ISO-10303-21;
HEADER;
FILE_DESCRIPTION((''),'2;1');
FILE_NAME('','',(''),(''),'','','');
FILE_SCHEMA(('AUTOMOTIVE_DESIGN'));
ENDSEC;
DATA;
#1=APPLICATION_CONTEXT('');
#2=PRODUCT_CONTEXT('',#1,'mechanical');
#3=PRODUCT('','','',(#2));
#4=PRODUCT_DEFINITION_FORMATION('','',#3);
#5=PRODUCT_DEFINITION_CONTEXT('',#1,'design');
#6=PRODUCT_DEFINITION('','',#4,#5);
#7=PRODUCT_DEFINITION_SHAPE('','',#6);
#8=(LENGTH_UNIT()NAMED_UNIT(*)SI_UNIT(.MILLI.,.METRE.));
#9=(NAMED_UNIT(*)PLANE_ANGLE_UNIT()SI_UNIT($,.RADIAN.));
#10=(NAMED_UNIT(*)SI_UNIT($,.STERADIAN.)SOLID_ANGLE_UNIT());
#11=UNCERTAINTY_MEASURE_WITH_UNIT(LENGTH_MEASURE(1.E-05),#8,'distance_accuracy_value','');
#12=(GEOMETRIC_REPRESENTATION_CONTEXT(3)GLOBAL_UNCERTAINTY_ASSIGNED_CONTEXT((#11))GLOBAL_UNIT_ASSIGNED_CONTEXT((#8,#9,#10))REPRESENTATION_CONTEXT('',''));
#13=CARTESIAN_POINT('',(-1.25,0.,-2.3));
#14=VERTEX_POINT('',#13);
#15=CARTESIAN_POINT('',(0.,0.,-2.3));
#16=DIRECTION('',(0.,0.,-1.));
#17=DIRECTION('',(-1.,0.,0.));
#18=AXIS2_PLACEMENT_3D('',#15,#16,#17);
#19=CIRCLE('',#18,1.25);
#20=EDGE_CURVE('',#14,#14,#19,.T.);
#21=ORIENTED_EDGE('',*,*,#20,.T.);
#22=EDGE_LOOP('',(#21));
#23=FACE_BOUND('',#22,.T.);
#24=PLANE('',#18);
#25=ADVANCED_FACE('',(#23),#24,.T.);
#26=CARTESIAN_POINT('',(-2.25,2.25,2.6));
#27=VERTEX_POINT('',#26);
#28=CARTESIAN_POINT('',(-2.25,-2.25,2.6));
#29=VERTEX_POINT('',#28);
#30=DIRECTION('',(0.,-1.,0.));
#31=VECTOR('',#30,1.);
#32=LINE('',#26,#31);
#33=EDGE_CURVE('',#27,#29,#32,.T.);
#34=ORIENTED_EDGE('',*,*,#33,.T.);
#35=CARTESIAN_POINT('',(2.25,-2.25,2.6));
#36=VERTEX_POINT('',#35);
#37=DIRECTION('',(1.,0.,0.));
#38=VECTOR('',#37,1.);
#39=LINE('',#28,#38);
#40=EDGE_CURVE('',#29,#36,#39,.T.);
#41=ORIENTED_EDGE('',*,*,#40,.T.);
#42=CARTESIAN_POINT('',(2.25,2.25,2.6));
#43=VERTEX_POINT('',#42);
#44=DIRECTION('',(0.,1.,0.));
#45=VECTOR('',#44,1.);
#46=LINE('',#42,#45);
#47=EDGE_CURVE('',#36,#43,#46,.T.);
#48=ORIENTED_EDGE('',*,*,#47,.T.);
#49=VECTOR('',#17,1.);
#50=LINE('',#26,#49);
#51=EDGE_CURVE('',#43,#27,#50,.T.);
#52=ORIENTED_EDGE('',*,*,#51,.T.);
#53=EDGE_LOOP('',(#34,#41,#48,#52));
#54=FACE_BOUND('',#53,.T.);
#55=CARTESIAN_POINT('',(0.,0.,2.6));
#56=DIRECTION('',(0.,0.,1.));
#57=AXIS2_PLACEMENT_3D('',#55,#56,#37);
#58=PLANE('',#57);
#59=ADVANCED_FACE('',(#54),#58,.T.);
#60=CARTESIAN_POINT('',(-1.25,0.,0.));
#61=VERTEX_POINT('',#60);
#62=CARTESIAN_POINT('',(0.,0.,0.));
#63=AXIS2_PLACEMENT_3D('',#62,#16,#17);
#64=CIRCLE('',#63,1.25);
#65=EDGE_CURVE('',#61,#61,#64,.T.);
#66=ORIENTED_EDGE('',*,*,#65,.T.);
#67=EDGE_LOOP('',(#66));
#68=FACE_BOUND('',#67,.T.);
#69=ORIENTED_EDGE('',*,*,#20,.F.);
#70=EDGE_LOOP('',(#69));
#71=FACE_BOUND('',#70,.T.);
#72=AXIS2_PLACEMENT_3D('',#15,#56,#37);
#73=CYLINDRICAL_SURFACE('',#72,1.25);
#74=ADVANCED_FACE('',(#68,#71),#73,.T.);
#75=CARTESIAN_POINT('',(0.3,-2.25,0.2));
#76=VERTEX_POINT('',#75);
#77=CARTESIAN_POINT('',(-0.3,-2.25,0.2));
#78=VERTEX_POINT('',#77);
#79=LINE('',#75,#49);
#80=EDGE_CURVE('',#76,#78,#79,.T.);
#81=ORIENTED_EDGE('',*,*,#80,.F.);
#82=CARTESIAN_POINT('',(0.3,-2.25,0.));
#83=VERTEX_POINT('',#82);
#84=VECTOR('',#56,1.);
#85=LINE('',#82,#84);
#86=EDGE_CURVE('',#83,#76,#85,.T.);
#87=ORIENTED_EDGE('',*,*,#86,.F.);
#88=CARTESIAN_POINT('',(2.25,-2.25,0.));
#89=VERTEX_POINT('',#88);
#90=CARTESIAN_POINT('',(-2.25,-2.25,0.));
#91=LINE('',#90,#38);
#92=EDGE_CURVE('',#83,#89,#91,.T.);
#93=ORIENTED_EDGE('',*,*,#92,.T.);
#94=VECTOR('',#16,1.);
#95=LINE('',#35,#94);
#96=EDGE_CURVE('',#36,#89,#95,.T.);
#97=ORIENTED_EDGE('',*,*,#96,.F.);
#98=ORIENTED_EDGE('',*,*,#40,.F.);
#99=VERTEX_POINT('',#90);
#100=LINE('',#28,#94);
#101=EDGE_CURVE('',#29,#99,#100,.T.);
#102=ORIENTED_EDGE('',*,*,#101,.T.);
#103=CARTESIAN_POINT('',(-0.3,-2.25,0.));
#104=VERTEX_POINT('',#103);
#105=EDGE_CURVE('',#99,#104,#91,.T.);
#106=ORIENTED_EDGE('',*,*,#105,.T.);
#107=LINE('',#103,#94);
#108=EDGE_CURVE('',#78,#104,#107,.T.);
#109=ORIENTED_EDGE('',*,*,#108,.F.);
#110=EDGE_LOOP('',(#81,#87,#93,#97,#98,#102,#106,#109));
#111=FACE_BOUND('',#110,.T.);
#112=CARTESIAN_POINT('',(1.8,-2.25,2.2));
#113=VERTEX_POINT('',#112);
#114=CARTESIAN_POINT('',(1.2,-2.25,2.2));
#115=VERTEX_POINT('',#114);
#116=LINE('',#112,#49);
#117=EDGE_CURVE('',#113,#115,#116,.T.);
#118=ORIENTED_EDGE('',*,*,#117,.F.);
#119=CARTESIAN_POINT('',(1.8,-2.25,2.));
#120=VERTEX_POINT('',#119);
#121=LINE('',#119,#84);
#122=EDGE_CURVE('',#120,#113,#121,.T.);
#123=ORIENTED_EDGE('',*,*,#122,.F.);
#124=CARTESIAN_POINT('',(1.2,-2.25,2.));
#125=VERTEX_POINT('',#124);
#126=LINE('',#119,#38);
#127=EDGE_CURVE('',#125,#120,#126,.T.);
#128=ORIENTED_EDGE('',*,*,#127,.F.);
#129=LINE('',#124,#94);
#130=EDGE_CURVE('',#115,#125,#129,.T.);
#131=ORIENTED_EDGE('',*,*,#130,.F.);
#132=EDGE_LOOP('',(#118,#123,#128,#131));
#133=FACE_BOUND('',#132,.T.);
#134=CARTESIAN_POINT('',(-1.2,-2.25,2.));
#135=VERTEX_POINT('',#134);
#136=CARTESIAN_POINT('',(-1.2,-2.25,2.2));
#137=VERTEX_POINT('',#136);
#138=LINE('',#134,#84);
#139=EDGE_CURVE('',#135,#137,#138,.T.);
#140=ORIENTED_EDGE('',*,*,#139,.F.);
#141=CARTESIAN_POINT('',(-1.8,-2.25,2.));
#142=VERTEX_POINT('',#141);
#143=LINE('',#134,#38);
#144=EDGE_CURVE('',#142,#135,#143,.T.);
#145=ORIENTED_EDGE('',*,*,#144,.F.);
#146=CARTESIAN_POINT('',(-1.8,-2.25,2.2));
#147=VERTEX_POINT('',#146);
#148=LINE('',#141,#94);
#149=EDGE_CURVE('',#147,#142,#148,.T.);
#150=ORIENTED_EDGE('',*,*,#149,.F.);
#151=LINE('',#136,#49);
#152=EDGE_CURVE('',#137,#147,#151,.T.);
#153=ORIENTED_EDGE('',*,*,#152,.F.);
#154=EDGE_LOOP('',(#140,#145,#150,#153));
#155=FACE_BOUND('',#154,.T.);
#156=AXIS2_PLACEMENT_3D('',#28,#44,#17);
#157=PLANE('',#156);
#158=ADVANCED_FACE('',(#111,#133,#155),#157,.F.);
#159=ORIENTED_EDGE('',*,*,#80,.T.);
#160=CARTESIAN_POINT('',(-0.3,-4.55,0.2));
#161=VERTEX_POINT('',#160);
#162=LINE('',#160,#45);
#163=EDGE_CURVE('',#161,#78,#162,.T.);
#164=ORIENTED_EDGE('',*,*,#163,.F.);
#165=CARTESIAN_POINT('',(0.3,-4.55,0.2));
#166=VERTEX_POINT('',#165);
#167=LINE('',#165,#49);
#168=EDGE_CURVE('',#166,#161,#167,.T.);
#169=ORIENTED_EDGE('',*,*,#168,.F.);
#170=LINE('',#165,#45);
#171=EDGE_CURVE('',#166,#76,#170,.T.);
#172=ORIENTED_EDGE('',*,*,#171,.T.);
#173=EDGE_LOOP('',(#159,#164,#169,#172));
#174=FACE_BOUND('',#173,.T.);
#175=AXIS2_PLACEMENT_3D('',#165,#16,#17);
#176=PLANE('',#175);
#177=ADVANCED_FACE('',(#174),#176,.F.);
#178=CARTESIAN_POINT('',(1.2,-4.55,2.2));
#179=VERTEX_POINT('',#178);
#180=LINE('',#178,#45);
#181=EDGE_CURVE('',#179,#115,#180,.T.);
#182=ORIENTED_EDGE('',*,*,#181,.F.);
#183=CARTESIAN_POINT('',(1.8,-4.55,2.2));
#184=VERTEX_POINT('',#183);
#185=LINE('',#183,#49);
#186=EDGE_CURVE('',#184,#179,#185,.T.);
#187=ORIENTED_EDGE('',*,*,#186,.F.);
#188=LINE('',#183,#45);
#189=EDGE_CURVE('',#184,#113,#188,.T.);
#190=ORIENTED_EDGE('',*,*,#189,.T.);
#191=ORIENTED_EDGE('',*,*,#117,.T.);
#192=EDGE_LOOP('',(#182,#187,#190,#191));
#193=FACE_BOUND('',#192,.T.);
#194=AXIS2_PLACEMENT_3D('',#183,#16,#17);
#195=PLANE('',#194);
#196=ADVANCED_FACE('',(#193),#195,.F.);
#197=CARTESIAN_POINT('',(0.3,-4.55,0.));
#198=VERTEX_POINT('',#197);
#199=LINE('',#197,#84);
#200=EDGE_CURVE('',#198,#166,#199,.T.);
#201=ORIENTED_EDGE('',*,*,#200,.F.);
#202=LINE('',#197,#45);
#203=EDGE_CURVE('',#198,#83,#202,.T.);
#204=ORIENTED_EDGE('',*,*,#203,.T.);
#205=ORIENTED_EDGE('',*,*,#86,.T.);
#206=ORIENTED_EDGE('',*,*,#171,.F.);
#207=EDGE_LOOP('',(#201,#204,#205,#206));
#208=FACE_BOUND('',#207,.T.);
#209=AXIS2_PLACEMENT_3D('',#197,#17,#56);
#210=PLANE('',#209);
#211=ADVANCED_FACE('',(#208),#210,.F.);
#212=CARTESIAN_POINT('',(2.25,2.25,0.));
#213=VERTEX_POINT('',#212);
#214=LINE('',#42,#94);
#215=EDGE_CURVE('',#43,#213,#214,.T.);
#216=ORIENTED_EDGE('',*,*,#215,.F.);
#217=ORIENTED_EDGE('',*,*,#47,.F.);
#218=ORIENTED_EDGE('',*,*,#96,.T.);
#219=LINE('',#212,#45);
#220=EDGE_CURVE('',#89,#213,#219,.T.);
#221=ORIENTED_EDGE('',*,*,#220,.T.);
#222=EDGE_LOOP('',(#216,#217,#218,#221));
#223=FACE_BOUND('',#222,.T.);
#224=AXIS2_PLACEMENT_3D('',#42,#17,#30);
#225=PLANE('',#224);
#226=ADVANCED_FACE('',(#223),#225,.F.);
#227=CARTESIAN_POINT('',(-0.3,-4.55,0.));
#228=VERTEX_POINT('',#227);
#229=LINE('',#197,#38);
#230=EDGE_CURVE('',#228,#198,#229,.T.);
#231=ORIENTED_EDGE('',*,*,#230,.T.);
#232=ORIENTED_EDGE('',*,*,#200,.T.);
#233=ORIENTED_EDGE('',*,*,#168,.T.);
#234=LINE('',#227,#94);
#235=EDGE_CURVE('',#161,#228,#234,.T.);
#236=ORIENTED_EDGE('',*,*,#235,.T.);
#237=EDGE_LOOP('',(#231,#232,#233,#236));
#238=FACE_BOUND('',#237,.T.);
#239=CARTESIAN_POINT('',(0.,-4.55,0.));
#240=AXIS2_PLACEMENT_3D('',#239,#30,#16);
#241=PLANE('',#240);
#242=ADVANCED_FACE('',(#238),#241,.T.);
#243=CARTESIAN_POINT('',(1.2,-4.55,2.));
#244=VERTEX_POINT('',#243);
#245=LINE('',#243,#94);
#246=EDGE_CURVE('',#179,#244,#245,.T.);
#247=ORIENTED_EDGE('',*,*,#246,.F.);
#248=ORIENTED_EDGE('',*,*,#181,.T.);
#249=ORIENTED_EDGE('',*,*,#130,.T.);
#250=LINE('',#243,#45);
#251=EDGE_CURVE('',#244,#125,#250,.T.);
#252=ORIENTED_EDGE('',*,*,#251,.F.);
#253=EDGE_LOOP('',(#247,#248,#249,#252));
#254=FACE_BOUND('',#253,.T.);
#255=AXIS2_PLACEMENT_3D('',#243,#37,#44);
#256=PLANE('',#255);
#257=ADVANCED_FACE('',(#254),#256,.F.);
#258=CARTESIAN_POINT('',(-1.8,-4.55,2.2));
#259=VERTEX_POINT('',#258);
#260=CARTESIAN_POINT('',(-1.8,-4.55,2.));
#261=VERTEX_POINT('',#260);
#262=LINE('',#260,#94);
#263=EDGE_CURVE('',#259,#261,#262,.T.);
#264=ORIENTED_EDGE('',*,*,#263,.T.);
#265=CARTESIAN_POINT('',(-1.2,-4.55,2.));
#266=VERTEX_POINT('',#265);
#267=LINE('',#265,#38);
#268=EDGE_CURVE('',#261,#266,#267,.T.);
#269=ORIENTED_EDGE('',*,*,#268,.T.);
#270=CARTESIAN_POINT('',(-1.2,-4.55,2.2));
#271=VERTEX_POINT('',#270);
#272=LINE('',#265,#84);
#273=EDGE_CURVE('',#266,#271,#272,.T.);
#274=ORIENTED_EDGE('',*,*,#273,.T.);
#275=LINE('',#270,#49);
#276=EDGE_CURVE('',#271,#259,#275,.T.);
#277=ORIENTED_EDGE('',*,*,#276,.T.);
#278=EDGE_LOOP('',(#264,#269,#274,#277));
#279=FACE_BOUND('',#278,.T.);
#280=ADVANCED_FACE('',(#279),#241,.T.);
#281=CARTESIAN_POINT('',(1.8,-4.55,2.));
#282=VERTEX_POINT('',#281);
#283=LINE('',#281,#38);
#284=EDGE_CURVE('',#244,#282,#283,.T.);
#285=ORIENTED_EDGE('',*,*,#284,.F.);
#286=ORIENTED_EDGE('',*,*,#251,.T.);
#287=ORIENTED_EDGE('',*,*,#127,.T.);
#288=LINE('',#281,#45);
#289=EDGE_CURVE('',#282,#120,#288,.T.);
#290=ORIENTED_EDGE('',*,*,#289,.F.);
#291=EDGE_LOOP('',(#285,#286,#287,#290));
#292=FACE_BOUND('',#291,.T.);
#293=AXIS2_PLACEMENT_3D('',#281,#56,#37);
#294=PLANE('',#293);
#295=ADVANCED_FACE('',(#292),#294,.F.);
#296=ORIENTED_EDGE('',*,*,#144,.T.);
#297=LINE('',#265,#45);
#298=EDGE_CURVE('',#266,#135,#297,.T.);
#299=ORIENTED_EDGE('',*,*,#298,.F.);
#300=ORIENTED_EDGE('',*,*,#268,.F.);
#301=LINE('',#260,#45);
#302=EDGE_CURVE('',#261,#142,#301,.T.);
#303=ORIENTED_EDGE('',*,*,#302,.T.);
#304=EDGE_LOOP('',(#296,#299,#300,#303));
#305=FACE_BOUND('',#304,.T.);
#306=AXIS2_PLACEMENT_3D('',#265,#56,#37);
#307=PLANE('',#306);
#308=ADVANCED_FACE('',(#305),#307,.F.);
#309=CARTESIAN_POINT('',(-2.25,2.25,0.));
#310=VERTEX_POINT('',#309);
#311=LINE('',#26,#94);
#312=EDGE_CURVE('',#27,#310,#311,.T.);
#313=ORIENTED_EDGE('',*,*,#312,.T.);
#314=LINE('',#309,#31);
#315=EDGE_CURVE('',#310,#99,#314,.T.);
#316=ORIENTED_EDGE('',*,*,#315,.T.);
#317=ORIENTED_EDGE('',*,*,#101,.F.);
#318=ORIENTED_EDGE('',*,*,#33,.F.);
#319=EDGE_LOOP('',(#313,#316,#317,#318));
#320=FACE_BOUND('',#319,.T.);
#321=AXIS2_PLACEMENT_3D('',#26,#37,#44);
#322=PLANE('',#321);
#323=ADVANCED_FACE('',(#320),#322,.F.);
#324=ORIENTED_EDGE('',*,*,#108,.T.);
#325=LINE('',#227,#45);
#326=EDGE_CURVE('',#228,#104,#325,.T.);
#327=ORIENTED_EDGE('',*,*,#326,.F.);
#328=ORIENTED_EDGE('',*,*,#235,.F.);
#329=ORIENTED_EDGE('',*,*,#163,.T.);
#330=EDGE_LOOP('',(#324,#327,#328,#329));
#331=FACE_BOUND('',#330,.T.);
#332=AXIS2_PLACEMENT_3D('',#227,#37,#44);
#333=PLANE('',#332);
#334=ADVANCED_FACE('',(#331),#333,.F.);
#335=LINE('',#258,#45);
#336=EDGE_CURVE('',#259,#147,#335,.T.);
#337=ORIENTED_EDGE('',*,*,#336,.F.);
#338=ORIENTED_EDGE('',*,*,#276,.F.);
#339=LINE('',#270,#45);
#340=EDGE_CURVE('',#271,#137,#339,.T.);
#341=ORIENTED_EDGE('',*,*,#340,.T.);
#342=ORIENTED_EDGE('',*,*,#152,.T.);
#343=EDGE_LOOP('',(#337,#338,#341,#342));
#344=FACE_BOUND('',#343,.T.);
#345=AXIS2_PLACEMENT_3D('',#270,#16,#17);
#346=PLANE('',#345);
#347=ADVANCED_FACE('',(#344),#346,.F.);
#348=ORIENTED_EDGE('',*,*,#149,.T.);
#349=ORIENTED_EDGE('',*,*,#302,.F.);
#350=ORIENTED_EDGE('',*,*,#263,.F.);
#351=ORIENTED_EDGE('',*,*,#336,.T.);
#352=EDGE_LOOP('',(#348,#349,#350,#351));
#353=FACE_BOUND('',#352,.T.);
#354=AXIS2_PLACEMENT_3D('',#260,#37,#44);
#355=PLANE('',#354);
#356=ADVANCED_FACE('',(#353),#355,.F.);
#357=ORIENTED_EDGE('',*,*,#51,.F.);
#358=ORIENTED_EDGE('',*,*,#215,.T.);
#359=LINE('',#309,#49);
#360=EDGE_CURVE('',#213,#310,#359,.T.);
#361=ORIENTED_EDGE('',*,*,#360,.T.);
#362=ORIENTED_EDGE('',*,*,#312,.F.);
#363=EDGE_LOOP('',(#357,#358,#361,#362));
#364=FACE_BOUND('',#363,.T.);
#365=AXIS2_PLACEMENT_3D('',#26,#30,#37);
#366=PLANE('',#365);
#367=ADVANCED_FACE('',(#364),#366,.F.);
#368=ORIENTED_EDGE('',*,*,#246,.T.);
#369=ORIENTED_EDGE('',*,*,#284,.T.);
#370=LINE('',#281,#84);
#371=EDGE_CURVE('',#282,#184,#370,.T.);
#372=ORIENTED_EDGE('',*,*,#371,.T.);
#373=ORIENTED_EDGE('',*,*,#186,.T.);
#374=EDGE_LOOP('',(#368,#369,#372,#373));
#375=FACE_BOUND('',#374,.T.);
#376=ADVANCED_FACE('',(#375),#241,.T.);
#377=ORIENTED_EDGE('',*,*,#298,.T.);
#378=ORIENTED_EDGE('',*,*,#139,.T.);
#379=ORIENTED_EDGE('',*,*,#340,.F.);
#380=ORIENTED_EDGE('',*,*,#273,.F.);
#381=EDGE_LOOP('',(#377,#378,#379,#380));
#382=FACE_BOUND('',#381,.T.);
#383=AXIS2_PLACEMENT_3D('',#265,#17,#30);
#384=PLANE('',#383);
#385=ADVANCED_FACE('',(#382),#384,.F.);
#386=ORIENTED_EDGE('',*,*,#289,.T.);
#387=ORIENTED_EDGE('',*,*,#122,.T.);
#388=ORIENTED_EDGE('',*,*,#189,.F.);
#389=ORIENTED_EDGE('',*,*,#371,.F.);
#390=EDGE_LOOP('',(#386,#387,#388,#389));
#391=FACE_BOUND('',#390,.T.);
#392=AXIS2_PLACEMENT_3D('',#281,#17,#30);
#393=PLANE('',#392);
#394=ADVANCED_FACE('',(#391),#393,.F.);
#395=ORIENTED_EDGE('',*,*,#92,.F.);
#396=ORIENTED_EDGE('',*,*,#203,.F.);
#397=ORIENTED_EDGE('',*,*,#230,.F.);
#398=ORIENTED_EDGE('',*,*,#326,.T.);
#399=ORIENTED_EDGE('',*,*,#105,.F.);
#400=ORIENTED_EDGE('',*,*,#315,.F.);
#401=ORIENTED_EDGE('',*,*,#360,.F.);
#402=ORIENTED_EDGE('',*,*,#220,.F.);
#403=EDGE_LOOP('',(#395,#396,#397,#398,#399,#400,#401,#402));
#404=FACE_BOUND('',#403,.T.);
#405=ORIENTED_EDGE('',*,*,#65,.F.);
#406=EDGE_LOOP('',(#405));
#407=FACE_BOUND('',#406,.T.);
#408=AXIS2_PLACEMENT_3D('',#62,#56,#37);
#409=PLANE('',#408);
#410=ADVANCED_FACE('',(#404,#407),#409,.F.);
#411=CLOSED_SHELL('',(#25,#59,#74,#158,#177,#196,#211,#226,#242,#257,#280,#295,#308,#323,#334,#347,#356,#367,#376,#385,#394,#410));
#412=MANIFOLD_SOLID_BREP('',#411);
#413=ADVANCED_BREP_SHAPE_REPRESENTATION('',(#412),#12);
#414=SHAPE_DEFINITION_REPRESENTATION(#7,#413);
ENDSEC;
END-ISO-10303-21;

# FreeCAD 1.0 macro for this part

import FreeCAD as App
import Part
import Sketcher

V = App.Vector


def add_polygon(sketch, points):
    """Adds a closed chain of lines whose ends are joined by coincident constraints."""
    first, n = sketch.GeometryCount, len(points)
    for a, b in zip(points, points[1:] + points[:1]):
        sketch.addGeometry(Part.LineSegment(App.Vector(*a, 0), App.Vector(*b, 0)), False)
    for i in range(n):
        sketch.addConstraint(Sketcher.Constraint("Coincident", first + i, 2, first + (i + 1) % n, 1))

doc = App.newDocument("Part")
body = doc.addObject("PartDesign::Body", "Body")

# Sketch on XY plane
sketch1 = body.newObject("Sketcher::SketchObject", "Sketch")
sketch1.AttachmentSupport = (doc.getObject("XY_Plane"), [""])
sketch1.MapMode = "FlatFace"
add_polygon(sketch1, [(-2.2, 2.2), (-2.2, -2.2), (2.2, -2.2), (2.2, 2.2)])  # lines 0-3
sketch1.addConstraint(Sketcher.Constraint("Vertical", 0))
sketch1.addConstraint(Sketcher.Constraint("Horizontal", 1))
sketch1.addConstraint(Sketcher.Constraint("Vertical", 2))
sketch1.addConstraint(Sketcher.Constraint("Horizontal", 3))
sketch1.addConstraint(Sketcher.Constraint("Symmetric", 0, 2, 2, 2, -1, 1))
sketch1.addConstraint(Sketcher.Constraint("Equal", 3, 0))
sketch1.addConstraint(Sketcher.Constraint("DistanceX", 1, 1, 1, 2, 4.5))
pad1 = body.newObject("PartDesign::Pad", "Pad")
pad1.Profile = sketch1
pad1.Length = 2.6

# Sketch on XY plane
sketch2 = body.newObject("Sketcher::SketchObject", "Sketch001")
sketch2.AttachmentSupport = (doc.getObject("XY_Plane"), [""])
sketch2.MapMode = "FlatFace"
sketch2.addGeometry(Part.Circle(V(0, 0, 0), V(0, 0, 1), 1.2), False)
sketch2.addConstraint(Sketcher.Constraint("Coincident", 0, 3, -1, 1))
sketch2.addConstraint(Sketcher.Constraint("Diameter", 0, 2.5))
pad2 = body.newObject("PartDesign::Pad", "Pad001")
pad2.Profile = sketch2
pad2.Length = 2.3
pad2.Reversed = True

# Sketch on XZ plane
sketch3 = body.newObject("Sketcher::SketchObject", "Sketch002")
sketch3.AttachmentSupport = (doc.getObject("XZ_Plane"), [""])
sketch3.MapMode = "FlatFace"
sketch3.AttachmentOffset = App.Placement(V(0, 0, 2.25), App.Rotation())
add_polygon(sketch3, [(-0.3, 0.2), (-0.3, 0), (0.3, 0), (0.3, 0.2)])  # lines 0-3
add_polygon(sketch3, [(1.2, 2.2), (1.2, 2), (1.8, 2), (1.8, 2.2)])  # lines 4-7
add_polygon(sketch3, [(-1.8, 2.2), (-1.8, 2), (-1.2, 2), (-1.2, 2.2)])  # lines 8-11
sketch3.addConstraint(Sketcher.Constraint("Vertical", 0))
sketch3.addConstraint(Sketcher.Constraint("Horizontal", 1))
sketch3.addConstraint(Sketcher.Constraint("Vertical", 2))
sketch3.addConstraint(Sketcher.Constraint("Horizontal", 3))
sketch3.addConstraint(Sketcher.Constraint("Vertical", 4))
sketch3.addConstraint(Sketcher.Constraint("Horizontal", 5))
sketch3.addConstraint(Sketcher.Constraint("Vertical", 6))
sketch3.addConstraint(Sketcher.Constraint("Horizontal", 7))
sketch3.addConstraint(Sketcher.Constraint("Vertical", 8))
sketch3.addConstraint(Sketcher.Constraint("Horizontal", 9))
sketch3.addConstraint(Sketcher.Constraint("Vertical", 10))
sketch3.addConstraint(Sketcher.Constraint("Horizontal", 11))
sketch3.addConstraint(Sketcher.Constraint("Symmetric", 0, 2, 1, 2, -1, 1))
sketch3.addConstraint(Sketcher.Constraint("Symmetric", 5, 2, 8, 2, -2))
sketch3.addConstraint(Sketcher.Constraint("Symmetric", 7, 2, 10, 2, -2))
sketch3.addConstraint(Sketcher.Constraint("Equal", 3, 5))
sketch3.addConstraint(Sketcher.Constraint("Equal", 2, 4))
sketch3.addConstraint(Sketcher.Constraint("DistanceX", 1, 1, 1, 2, 0.6))
sketch3.addConstraint(Sketcher.Constraint("DistanceY", 0, 2, 0, 1, 0.2))
sketch3.addConstraint(Sketcher.Constraint("DistanceY", -1, 1, 4, 2, 2.0))
sketch3.addConstraint(Sketcher.Constraint("DistanceX", 8, 2, 4, 2, 3.0))
pad3 = body.newObject("PartDesign::Pad", "Pad002")
pad3.Profile = sketch3
pad3.Length = 2.3

doc.recompute()
